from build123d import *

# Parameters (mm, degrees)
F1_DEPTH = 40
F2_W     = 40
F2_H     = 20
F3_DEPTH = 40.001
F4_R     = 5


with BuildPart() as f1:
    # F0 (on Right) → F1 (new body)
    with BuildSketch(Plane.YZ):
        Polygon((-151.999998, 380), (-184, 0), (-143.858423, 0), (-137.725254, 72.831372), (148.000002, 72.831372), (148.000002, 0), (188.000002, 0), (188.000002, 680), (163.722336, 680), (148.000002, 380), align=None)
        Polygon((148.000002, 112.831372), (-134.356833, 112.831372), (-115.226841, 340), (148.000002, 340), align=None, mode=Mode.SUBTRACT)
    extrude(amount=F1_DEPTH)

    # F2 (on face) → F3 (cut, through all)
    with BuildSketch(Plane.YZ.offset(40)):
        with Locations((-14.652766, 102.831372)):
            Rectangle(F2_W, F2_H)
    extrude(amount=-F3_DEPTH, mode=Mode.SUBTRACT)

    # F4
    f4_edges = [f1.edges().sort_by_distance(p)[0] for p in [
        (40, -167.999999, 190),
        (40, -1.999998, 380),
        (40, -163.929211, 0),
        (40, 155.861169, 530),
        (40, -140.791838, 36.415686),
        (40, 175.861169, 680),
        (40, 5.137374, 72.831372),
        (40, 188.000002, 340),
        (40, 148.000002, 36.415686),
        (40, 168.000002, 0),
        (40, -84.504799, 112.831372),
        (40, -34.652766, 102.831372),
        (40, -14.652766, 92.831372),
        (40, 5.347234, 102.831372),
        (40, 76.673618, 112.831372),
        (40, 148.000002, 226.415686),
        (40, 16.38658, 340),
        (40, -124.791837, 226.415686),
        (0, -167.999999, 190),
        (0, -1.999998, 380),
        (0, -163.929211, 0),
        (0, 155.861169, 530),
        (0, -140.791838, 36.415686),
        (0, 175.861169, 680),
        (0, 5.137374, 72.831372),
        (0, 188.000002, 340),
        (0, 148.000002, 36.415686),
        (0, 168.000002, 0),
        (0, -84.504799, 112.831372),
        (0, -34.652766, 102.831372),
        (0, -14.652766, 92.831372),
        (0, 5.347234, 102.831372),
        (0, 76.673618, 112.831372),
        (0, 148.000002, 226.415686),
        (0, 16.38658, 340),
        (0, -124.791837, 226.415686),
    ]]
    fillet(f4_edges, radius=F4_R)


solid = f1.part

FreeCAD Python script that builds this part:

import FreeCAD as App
import Part
import Sketcher

V = App.Vector
Q = App.Units.Quantity


def edges_at(feature, points):
    """Names of the edges that pass closest to the given points."""
    edges = feature.Shape.Edges
    near = lambda p: min(range(len(edges)), key=lambda i: edges[i].distToShape(Part.Vertex(*p))[0])
    return sorted({f"Edge{near(p) + 1}" for p in points})

doc = App.newDocument("Part")
body = doc.addObject("PartDesign::Body", "Body")

sketch1 = body.newObject("Sketcher::SketchObject", "Sketch")
sketch1.AttachmentSupport = (doc.getObject("YZ_Plane"), [""])
sketch1.MapMode = "FlatFace"
sketch1.addGeometry(Part.LineSegment(V(-152, 380, 0), V(-184, 0, 0)), False)
sketch1.addGeometry(Part.LineSegment(V(-184, 0, 0), V(-144, 0, 0)), False)
sketch1.addGeometry(Part.LineSegment(V(-144, 0, 0), V(-138, 73, 0)), False)
sketch1.addGeometry(Part.LineSegment(V(-138, 73, 0), V(148, 73, 0)), False)
sketch1.addGeometry(Part.LineSegment(V(148, 73, 0), V(148, 0, 0)), False)
sketch1.addGeometry(Part.LineSegment(V(148, 0, 0), V(188, 0, 0)), False)
sketch1.addGeometry(Part.LineSegment(V(188, 0, 0), V(188, 680, 0)), False)
sketch1.addGeometry(Part.LineSegment(V(188, 680, 0), V(164, 680, 0)), False)
sketch1.addGeometry(Part.LineSegment(V(164, 680, 0), V(148, 380, 0)), False)
sketch1.addGeometry(Part.LineSegment(V(148, 380, 0), V(-152, 380, 0)), False)
sketch1.addGeometry(Part.LineSegment(V(148, 340, 0), V(148, 113, 0)), False)
sketch1.addGeometry(Part.LineSegment(V(148, 113, 0), V(-134, 113, 0)), False)
sketch1.addGeometry(Part.LineSegment(V(-134, 113, 0), V(-115, 340, 0)), False)
sketch1.addGeometry(Part.LineSegment(V(-115, 340, 0), V(148, 340, 0)), False)
sketch1.addConstraint(Sketcher.Constraint("Coincident", 0, 2, 1, 1))
sketch1.addConstraint(Sketcher.Constraint("Coincident", 1, 2, 2, 1))
sketch1.addConstraint(Sketcher.Constraint("Coincident", 2, 2, 3, 1))
sketch1.addConstraint(Sketcher.Constraint("Coincident", 3, 2, 4, 1))
sketch1.addConstraint(Sketcher.Constraint("Coincident", 4, 2, 5, 1))
sketch1.addConstraint(Sketcher.Constraint("Coincident", 5, 2, 6, 1))
sketch1.addConstraint(Sketcher.Constraint("Coincident", 6, 2, 7, 1))
sketch1.addConstraint(Sketcher.Constraint("Coincident", 7, 2, 8, 1))
sketch1.addConstraint(Sketcher.Constraint("Coincident", 8, 2, 9, 1))
sketch1.addConstraint(Sketcher.Constraint("Coincident", 9, 2, 0, 1))
sketch1.addConstraint(Sketcher.Constraint("Coincident", 10, 2, 11, 1))
sketch1.addConstraint(Sketcher.Constraint("Coincident", 11, 2, 12, 1))
sketch1.addConstraint(Sketcher.Constraint("Coincident", 12, 2, 13, 1))
sketch1.addConstraint(Sketcher.Constraint("Coincident", 13, 2, 10, 1))
sketch1.addConstraint(Sketcher.Constraint("Horizontal", 1))
sketch1.addConstraint(Sketcher.Constraint("Horizontal", 3))
sketch1.addConstraint(Sketcher.Constraint("Vertical", 4))
sketch1.addConstraint(Sketcher.Constraint("Horizontal", 5))
sketch1.addConstraint(Sketcher.Constraint("Vertical", 6))
sketch1.addConstraint(Sketcher.Constraint("Horizontal", 7))
sketch1.addConstraint(Sketcher.Constraint("Horizontal", 9))
sketch1.addConstraint(Sketcher.Constraint("Vertical", 10))
sketch1.addConstraint(Sketcher.Constraint("Horizontal", 11))
sketch1.addConstraint(Sketcher.Constraint("Horizontal", 13))
sketch1.addConstraint(Sketcher.Constraint("PointOnObject", 0, 2, -1))
sketch1.addConstraint(Sketcher.Constraint("PointOnObject", 4, 2, -1))
sketch1.addConstraint(Sketcher.Constraint("Parallel", 0, 2))
sketch1.addConstraint(Sketcher.Constraint("Parallel", 2, 12))
sketch1.addConstraint(Sketcher.Constraint("Vertical", 4, 2, 8, 2))
sketch1.addConstraint(Sketcher.Constraint("Vertical", 8, 2, 10, 2))
sketch1.addConstraint(Sketcher.Constraint("DistanceX", 5, 1, 5, 2, 40.0))
sketch1.addConstraint(Sketcher.Constraint("DistanceX", 9, 2, 9, 1, 300.0))
sketch1.addConstraint(Sketcher.Constraint("DistanceY", 6, 1, 6, 2, 680.0))
sketch1.addConstraint(Sketcher.Constraint("Angle", 8, Q("-93 deg")))
sketch1.addConstraint(Sketcher.Constraint("DistanceX", 0, 2, -1, 1, 184.0))
sketch1.addConstraint(Sketcher.Constraint("DistanceX", -1, 1, 3, 2, 148.000002))
sketch1.addConstraint(Sketcher.Constraint("DistanceY", -1, 1, 8, 2, 380.0))
sketch1.addConstraint(Sketcher.Constraint("DistanceY", -1, 1, 12, 2, 340.0))
sketch1.addConstraint(Sketcher.Constraint("DistanceY", 3, 2, 10, 2, 40.0))
sketch1.addConstraint(Sketcher.Constraint("DistanceY", 4, 2, 4, 1, 72.831372))
sketch1.addConstraint(Sketcher.Constraint("DistanceX", 1, 1, 1, 2, 40.141577))
sketch1.addConstraint(Sketcher.Constraint("DistanceX", 11, 2, 11, 1, 282.356835))
pad1 = body.newObject("PartDesign::Pad", "Pad")
pad1.Profile = sketch1
pad1.Length = 40

sketch2 = body.newObject("Sketcher::SketchObject", "Sketch001")
sketch2.AttachmentSupport = (doc.getObject("YZ_Plane"), [""])
sketch2.MapMode = "FlatFace"
sketch2.AttachmentOffset = App.Placement(V(0, 0, 40), App.Rotation())
sketch2.addGeometry(Part.LineSegment(V(-35, 113, 0), V(-35, 93, 0)), False)
sketch2.addGeometry(Part.LineSegment(V(-35, 93, 0), V(5, 93, 0)), False)
sketch2.addGeometry(Part.LineSegment(V(5, 93, 0), V(5, 113, 0)), False)
sketch2.addGeometry(Part.LineSegment(V(5, 113, 0), V(-35, 113, 0)), False)
sketch2.addConstraint(Sketcher.Constraint("Coincident", 0, 2, 1, 1))
sketch2.addConstraint(Sketcher.Constraint("Coincident", 1, 2, 2, 1))
sketch2.addConstraint(Sketcher.Constraint("Coincident", 2, 2, 3, 1))
sketch2.addConstraint(Sketcher.Constraint("Coincident", 3, 2, 0, 1))
sketch2.addConstraint(Sketcher.Constraint("Vertical", 0))
sketch2.addConstraint(Sketcher.Constraint("Horizontal", 1))
sketch2.addConstraint(Sketcher.Constraint("Vertical", 2))
sketch2.addConstraint(Sketcher.Constraint("Horizontal", 3))
sketch2.addConstraint(Sketcher.Constraint("DistanceX", 1, 1, 1, 2, 40.0))
sketch2.addConstraint(Sketcher.Constraint("DistanceY", 0, 2, 0, 1, 20.0))
sketch2.addConstraint(Sketcher.Constraint("DistanceY", -1, 1, 0, 2, 92.831372))
sketch2.addConstraint(Sketcher.Constraint("DistanceX", 0, 2, -1, 1, 34.652766))
pocket1 = body.newObject("PartDesign::Pocket", "Pocket")
pocket1.Profile = sketch2
pocket1.Type = "ThroughAll"
doc.recompute()

fillet = body.newObject("PartDesign::Fillet", "Fillet")
fillet.Base = (pocket1, edges_at(pocket1, [
    (40, -168, 190),
    (40, -2, 380),
    (40, -163.929, 0),
    (40, 155.861, 530),
    (40, -140.792, 36.416),
    (40, 175.861, 680),
    (40, 5.137, 72.831),
    (40, 188, 340),
    (40, 148, 36.416),
    (40, 168, 0),
    (40, -84.505, 112.831),
    (40, -34.653, 102.831),
    (40, -14.653, 92.831),
    (40, 5.347, 102.831),
    (40, 76.674, 112.831),
    (40, 148, 226.416),
    (40, 16.387, 340),
    (40, -124.792, 226.416),
    (0, -168, 190),
    (0, -2, 380),
    (0, -163.929, 0),
    (0, 155.861, 530),
    (0, -140.792, 36.416),
    (0, 175.861, 680),
    (0, 5.137, 72.831),
    (0, 188, 340),
    (0, 148, 36.416),
    (0, 168, 0),
    (0, -84.505, 112.831),
    (0, -34.653, 102.831),
    (0, -14.653, 92.831),
    (0, 5.347, 102.831),
    (0, 76.674, 112.831),
    (0, 148, 226.416),
    (0, 16.387, 340),
    (0, -124.792, 226.416),
]))
fillet.Radius = 5

doc.recompute()
